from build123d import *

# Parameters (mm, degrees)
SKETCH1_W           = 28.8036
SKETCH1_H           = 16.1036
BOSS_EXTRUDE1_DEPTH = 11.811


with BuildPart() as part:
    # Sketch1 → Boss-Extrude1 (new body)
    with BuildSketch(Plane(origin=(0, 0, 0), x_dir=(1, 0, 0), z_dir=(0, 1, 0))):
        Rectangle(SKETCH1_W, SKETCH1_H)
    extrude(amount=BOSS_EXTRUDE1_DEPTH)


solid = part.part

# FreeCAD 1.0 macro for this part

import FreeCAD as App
import Part
import Sketcher
Q = App.Units.Quantity

doc = App.newDocument("Part")
body = doc.addObject("PartDesign::Body", "Body")

# Sketch on XZ plane
sketch1 = body.newObject("Sketcher::SketchObject", "Sketch")
sketch1.AttachmentSupport = (doc.getObject("XZ_Plane"), [""])
sketch1.MapMode = "FlatFace"
sketch1.addGeometry([
    Part.LineSegment(App.Vector(-14, -8, 0), App.Vector(-14, 8, 0)),
    Part.LineSegment(App.Vector(-14, 8, 0), App.Vector(14, 8, 0)),
    Part.LineSegment(App.Vector(14, 8, 0), App.Vector(14, -8, 0)),
    Part.LineSegment(App.Vector(14, -8, 0), App.Vector(-14, -8, 0)),
], False)
sketch1.addConstraint([
    Sketcher.Constraint("Coincident", 0, 2, 1, 1),
    Sketcher.Constraint("Coincident", 1, 2, 2, 1),
    Sketcher.Constraint("Coincident", 2, 2, 3, 1),
    Sketcher.Constraint("Coincident", 3, 2, 0, 1),
    Sketcher.Constraint("Vertical", 0),
    Sketcher.Constraint("Horizontal", 1),
    Sketcher.Constraint("Vertical", 2),
    Sketcher.Constraint("Horizontal", 3),
    Sketcher.Constraint("Symmetric", 0, 2, 2, 2, -1, 1),
    Sketcher.Constraint("DistanceX", 1, 1, 1, 2, Q("1.134 in")),
    Sketcher.Constraint("DistanceY", 0, 1, 0, 2, Q("0.634 in")),
])
pad1 = body.newObject("PartDesign::Pad", "Pad")
pad1.Profile = sketch1
pad1.Length = Q("0.465 in")
pad1.Reversed = True

doc.recompute()
